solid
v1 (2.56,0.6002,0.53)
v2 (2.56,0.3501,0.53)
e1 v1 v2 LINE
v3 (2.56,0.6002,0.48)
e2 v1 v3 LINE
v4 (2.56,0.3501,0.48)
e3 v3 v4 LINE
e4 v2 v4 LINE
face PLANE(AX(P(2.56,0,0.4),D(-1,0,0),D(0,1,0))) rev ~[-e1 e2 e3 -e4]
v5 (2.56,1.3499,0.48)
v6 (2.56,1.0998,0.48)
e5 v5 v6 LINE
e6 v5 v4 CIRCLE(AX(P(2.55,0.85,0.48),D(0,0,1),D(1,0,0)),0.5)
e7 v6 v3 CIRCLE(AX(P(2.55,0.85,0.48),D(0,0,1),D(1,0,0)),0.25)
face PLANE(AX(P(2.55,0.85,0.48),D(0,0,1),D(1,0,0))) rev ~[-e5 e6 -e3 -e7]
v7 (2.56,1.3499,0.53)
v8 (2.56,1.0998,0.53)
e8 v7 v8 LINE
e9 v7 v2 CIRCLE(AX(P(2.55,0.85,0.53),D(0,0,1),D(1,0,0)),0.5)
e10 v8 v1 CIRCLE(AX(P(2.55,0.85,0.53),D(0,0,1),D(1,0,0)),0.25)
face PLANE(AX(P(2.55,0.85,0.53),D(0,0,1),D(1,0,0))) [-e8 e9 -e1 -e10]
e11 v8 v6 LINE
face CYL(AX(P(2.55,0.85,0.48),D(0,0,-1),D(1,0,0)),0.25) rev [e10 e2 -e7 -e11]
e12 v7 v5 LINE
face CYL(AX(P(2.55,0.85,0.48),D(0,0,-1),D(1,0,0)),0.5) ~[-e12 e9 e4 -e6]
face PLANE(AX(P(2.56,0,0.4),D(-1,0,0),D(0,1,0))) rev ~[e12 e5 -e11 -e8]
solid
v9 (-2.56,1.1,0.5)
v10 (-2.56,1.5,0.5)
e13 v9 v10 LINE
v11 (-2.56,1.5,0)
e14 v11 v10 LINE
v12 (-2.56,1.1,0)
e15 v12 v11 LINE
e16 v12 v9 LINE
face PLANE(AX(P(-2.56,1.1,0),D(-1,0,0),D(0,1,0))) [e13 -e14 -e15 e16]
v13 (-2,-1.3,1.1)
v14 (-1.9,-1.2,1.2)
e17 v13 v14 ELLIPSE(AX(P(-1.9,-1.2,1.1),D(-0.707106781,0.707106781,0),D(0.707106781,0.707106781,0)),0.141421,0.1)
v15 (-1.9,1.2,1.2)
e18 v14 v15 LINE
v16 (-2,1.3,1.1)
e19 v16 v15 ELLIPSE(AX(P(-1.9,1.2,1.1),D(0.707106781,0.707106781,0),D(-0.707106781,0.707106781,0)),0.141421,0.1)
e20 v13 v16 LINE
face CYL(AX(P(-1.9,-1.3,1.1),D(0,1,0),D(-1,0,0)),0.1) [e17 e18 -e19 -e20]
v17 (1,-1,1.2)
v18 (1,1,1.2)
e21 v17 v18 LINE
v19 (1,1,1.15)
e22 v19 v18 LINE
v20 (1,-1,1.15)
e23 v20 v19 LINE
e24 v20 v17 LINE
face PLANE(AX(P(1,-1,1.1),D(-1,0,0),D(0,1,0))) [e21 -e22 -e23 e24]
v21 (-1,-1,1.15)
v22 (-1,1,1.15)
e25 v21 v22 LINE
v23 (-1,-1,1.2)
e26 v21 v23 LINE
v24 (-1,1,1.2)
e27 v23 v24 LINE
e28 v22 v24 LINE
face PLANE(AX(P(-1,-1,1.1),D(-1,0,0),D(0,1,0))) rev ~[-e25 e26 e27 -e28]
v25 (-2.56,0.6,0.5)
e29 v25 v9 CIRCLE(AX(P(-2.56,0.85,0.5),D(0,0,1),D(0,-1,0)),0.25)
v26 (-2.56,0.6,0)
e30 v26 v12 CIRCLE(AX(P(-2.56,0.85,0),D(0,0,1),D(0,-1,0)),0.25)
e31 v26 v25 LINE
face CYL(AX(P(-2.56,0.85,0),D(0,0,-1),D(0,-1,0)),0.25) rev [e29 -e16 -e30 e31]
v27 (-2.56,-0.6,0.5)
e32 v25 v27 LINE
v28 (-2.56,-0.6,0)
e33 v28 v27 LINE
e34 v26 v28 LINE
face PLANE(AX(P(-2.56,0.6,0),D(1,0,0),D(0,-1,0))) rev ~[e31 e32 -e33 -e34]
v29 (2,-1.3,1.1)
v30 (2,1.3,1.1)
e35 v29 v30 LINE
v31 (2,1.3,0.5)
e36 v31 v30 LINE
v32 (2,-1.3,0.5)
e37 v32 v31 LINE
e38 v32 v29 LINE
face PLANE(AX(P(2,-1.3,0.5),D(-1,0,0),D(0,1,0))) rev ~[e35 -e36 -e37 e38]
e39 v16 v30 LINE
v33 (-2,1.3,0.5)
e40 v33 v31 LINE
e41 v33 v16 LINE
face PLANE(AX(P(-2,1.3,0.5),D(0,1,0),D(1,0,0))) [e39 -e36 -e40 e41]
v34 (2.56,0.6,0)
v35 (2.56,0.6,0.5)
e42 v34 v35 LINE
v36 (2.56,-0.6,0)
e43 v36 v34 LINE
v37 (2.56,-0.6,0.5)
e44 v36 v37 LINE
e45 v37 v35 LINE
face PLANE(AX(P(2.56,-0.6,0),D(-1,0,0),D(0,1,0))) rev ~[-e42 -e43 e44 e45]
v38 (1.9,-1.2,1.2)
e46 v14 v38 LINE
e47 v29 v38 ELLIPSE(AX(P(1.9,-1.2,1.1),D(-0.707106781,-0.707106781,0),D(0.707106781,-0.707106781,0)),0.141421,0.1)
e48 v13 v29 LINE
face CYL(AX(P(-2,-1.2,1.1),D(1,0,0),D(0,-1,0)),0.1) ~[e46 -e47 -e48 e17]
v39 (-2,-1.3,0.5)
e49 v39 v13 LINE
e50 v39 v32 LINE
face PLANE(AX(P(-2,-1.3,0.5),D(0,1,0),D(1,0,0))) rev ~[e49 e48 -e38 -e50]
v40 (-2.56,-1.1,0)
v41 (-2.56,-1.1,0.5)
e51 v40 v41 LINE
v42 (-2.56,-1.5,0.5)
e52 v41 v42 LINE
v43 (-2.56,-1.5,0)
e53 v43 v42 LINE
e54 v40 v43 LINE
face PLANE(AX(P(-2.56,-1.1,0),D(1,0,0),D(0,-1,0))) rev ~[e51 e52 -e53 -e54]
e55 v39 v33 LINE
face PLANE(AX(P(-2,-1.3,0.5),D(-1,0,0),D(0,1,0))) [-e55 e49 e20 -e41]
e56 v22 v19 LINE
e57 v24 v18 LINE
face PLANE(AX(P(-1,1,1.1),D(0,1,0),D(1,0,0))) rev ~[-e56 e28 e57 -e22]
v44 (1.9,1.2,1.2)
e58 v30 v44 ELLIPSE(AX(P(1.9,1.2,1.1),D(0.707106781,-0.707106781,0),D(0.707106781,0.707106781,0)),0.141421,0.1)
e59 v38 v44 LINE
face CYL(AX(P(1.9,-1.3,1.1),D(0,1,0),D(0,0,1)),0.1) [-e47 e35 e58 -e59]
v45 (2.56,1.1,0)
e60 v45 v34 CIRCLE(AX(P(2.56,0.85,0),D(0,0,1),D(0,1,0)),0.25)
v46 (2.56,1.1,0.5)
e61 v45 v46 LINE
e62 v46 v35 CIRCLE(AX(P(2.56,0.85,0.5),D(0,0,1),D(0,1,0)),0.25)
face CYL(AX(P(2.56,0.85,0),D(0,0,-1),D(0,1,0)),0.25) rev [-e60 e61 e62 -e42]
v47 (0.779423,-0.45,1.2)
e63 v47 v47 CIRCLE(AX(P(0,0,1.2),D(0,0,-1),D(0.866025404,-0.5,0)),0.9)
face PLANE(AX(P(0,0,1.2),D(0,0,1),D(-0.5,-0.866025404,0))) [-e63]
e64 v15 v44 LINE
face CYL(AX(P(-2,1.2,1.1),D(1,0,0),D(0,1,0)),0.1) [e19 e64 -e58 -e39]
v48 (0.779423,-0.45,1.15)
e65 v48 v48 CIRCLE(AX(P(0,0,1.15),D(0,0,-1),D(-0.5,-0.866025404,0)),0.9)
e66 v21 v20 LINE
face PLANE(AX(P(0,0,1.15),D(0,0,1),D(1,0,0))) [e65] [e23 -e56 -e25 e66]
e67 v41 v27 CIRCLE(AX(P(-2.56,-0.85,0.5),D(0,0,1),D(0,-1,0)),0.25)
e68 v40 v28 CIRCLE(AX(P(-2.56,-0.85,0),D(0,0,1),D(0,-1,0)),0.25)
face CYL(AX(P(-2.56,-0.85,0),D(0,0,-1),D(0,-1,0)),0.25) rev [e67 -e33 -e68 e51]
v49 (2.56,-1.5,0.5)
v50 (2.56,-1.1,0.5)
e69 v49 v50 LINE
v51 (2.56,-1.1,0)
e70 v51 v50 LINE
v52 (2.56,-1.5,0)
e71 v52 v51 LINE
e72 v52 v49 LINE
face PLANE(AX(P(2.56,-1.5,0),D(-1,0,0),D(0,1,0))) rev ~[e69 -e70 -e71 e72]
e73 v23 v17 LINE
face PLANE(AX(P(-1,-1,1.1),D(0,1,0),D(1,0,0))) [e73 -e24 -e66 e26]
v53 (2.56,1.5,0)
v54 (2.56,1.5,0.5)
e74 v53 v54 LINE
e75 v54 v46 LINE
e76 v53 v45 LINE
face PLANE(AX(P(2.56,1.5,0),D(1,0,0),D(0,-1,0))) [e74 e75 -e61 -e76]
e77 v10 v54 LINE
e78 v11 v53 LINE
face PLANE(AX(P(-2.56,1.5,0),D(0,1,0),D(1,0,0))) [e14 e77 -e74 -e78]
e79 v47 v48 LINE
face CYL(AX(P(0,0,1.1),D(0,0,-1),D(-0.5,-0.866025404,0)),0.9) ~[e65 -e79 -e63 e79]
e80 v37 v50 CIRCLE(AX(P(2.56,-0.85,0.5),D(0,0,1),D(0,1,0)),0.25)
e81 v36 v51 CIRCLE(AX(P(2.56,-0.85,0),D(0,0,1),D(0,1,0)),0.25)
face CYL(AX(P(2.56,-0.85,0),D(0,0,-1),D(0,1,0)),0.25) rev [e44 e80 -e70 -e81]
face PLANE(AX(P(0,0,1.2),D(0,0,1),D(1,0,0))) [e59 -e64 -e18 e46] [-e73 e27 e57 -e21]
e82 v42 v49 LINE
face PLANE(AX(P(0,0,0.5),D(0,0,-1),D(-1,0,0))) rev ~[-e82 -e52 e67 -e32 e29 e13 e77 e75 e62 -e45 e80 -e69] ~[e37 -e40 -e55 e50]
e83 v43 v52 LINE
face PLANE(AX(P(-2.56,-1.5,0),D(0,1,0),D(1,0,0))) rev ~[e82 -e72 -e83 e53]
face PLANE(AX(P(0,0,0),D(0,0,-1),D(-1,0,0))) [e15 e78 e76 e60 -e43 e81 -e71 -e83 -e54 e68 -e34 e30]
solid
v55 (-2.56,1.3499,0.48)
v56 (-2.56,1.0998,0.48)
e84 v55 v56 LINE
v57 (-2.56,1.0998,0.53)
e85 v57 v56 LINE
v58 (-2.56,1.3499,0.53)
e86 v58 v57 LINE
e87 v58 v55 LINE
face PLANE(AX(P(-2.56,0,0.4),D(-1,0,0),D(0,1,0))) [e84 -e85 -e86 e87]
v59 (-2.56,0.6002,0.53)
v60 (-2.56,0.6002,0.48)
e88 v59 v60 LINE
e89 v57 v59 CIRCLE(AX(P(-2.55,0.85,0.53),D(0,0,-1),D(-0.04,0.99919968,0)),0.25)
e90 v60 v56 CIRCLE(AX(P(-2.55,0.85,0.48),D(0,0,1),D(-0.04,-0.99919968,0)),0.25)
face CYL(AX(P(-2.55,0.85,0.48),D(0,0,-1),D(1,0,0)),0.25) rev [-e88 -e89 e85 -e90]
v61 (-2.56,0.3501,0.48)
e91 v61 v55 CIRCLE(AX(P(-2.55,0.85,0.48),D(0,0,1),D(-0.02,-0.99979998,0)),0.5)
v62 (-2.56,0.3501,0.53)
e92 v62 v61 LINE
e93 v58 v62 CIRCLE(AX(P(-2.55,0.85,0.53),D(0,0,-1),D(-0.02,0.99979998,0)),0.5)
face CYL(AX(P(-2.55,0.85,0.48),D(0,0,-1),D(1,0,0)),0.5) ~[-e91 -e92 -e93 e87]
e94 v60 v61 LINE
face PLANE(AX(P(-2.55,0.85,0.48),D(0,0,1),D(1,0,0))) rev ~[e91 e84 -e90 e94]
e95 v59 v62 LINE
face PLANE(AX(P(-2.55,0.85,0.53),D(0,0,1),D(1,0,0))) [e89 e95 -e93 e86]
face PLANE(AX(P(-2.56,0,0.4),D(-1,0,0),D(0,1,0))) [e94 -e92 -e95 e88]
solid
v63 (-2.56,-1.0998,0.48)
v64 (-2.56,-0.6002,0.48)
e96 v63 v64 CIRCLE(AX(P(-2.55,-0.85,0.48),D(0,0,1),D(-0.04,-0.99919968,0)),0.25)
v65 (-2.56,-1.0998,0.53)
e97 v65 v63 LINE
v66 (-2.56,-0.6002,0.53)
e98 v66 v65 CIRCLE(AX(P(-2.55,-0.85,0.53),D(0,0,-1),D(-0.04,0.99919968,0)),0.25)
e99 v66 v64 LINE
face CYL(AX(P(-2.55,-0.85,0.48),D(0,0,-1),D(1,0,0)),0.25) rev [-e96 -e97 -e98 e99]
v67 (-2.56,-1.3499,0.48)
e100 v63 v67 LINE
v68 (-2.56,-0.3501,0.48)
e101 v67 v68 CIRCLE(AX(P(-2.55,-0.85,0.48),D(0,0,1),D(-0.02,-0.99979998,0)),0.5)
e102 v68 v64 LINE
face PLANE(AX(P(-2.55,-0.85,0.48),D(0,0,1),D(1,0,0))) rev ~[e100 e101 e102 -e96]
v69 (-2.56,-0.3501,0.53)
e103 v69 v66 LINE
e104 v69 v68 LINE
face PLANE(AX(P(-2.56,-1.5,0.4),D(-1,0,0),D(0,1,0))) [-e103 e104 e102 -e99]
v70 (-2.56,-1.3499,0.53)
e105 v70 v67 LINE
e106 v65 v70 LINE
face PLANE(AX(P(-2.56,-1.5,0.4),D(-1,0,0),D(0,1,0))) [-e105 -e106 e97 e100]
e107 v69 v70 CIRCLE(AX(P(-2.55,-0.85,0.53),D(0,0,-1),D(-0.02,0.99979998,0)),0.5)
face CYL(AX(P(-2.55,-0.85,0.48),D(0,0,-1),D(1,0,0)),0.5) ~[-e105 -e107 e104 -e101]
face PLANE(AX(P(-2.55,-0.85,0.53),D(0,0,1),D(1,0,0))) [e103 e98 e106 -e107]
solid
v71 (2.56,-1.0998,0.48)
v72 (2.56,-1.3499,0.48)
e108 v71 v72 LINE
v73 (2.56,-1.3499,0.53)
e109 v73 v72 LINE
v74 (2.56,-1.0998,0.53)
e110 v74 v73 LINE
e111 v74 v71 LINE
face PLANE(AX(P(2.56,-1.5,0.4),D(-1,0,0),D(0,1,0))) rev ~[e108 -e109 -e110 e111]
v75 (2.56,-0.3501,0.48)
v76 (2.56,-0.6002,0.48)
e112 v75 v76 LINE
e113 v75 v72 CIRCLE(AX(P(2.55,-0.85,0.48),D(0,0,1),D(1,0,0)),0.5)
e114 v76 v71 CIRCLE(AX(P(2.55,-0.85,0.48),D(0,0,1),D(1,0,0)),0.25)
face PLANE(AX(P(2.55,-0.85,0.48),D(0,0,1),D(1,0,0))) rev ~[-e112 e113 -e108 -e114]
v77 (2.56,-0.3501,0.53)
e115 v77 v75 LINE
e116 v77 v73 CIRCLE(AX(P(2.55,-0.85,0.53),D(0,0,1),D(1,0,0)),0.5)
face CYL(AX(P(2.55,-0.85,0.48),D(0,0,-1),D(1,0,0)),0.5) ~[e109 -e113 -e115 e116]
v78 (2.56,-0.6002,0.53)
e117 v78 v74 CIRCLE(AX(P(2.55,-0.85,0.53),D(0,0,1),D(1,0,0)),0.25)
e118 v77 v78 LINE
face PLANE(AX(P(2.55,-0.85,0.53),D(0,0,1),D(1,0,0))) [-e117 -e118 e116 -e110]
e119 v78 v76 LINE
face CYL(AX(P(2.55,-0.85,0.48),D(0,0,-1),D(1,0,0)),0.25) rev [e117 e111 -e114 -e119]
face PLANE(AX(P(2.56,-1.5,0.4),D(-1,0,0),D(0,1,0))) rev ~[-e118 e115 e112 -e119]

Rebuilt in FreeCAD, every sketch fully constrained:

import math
import FreeCAD as App
import Part
import Sketcher

V = App.Vector
Q = App.Units.Quantity


def edges_at(feature, points):
    """Names of the edges that pass closest to the given points."""
    edges = feature.Shape.Edges
    near = lambda p: min(range(len(edges)), key=lambda i: edges[i].distToShape(Part.Vertex(*p))[0])
    return sorted({f"Edge{near(p) + 1}" for p in points})


def add_polygon(sketch, points):
    """Adds a closed chain of lines whose ends are joined by coincident constraints."""
    first, n = sketch.GeometryCount, len(points)
    for a, b in zip(points, points[1:] + points[:1]):
        sketch.addGeometry(Part.LineSegment(App.Vector(*a, 0), App.Vector(*b, 0)), False)
    for i in range(n):
        sketch.addConstraint(Sketcher.Constraint("Coincident", first + i, 2, first + (i + 1) % n, 1))

doc = App.newDocument("Part")
body = doc.addObject("PartDesign::Body", "Body")

# Sketch on XY plane
sketch1 = body.newObject("Sketcher::SketchObject", "Sketch")
sketch1.AttachmentSupport = (doc.getObject("XY_Plane"), [""])
sketch1.MapMode = "FlatFace"
sketch1.AttachmentOffset = App.Placement(V(0, 0, 0.4), App.Rotation())
add_polygon(sketch1, [(-3.6, 1.5), (-3.6, 0), (-2.6, 0), (-2.6, 1.5)])  # lines 0-3
sketch1.addConstraint([
    Sketcher.Constraint("Vertical", 0),
    Sketcher.Constraint("Horizontal", 1),
    Sketcher.Constraint("Vertical", 2),
    Sketcher.Constraint("Horizontal", 3),
    Sketcher.Constraint("PointOnObject", 0, 2, -1),
    Sketcher.Constraint("DistanceX", 1, 1, 1, 2, Q("1 mm")),
    Sketcher.Constraint("DistanceY", 0, 2, 0, 1, Q("1.5 mm")),
    Sketcher.Constraint("DistanceX", 0, 2, -1, 1, Q("3.56 mm")),
])
pad1 = body.newObject("PartDesign::Pad", "Pad")
pad1.Profile = sketch1
pad1.Length = 0.3
body2 = doc.addObject("PartDesign::Body", "Body001")

# Sketch on XY plane
sketch2 = body2.newObject("Sketcher::SketchObject", "Sketch001")
sketch2.AttachmentSupport = (doc.getObject("XY_Plane001"), [""])
sketch2.MapMode = "FlatFace"
sketch2.AttachmentOffset = App.Placement(V(0, 0, 0.48), App.Rotation())
sketch2.addGeometry(Part.Circle(V(-2.55, 0.85, 0), V(0, 0, 1), 0.25), False)
sketch2.addConstraint([
    Sketcher.Constraint("Diameter", 0, Q("0.5 mm")),
    Sketcher.Constraint("DistanceX", 0, 3, -1, 1, Q("2.55 mm")),
    Sketcher.Constraint("DistanceY", -1, 1, 0, 3, Q("0.85 mm")),
])
pad2 = body2.newObject("PartDesign::Pad", "Pad001")
pad2.Profile = sketch2
pad2.Length = 0.05
body3 = doc.addObject("PartDesign::Body", "Body002")

# Sketch on XY plane
sketch3 = body3.newObject("Sketcher::SketchObject", "Sketch002")
sketch3.AttachmentSupport = (doc.getObject("XY_Plane002"), [""])
sketch3.MapMode = "FlatFace"
sketch3.AttachmentOffset = App.Placement(V(0, 0, 0.48), App.Rotation())
sketch3.addGeometry(Part.Circle(V(-2.5, 0.8, 0), V(0, 0, 1), 0.5), False)
sketch3.addConstraint([
    Sketcher.Constraint("Diameter", 0, Q("1 mm")),
    Sketcher.Constraint("DistanceX", 0, 3, -1, 1, Q("2.55 mm")),
    Sketcher.Constraint("DistanceY", -1, 1, 0, 3, Q("0.85 mm")),
])
pad3 = body3.newObject("PartDesign::Pad", "Pad002")
pad3.Profile = sketch3
pad3.Length = 0.05
doc.recompute()

boolean = body3.newObject("PartDesign::Boolean", "Boolean")
boolean.Type = "Cut"
boolean.addObjects([body2])
doc.recompute()

boolean2 = body3.newObject("PartDesign::Boolean", "Boolean001")
boolean2.Type = "Cut"
boolean2.addObjects([body])
body4 = doc.addObject("PartDesign::Body", "Body003")

# Sketch on XY plane
sketch4 = body4.newObject("Sketcher::SketchObject", "Sketch003")
sketch4.AttachmentSupport = (doc.getObject("XY_Plane003"), [""])
sketch4.MapMode = "FlatFace"
sketch4.AttachmentOffset = App.Placement(V(0, 0, 0.4), App.Rotation())
add_polygon(sketch4, [(-3.6, 1), (-3.6, -1.5), (-2.6, -1.5), (-2.6, 1)])  # lines 0-3
sketch4.addConstraint([
    Sketcher.Constraint("Vertical", 0),
    Sketcher.Constraint("Horizontal", 1),
    Sketcher.Constraint("Vertical", 2),
    Sketcher.Constraint("Horizontal", 3),
    Sketcher.Constraint("DistanceX", 1, 1, 1, 2, Q("1 mm")),
    Sketcher.Constraint("DistanceY", 0, 2, 0, 1, Q("2.5 mm")),
    Sketcher.Constraint("DistanceY", -1, 1, 2, 2, Q("1 mm")),
    Sketcher.Constraint("DistanceX", 0, 2, -1, 1, Q("3.56 mm")),
])
pad4 = body4.newObject("PartDesign::Pad", "Pad003")
pad4.Profile = sketch4
pad4.Length = 0.3
body5 = doc.addObject("PartDesign::Body", "Body004")

# Sketch on XY plane
sketch5 = body5.newObject("Sketcher::SketchObject", "Sketch004")
sketch5.AttachmentSupport = (doc.getObject("XY_Plane004"), [""])
sketch5.MapMode = "FlatFace"
sketch5.AttachmentOffset = App.Placement(V(0, 0, 0.48), App.Rotation())
sketch5.addGeometry(Part.Circle(V(-2.55, -0.85, 0), V(0, 0, 1), 0.25), False)
sketch5.addConstraint([
    Sketcher.Constraint("Diameter", 0, Q("0.5 mm")),
    Sketcher.Constraint("DistanceX", 0, 3, -1, 1, Q("2.55 mm")),
    Sketcher.Constraint("DistanceY", 0, 3, -1, 1, Q("0.85 mm")),
])
pad5 = body5.newObject("PartDesign::Pad", "Pad004")
pad5.Profile = sketch5
pad5.Length = 0.05
body6 = doc.addObject("PartDesign::Body", "Body005")

# Sketch on XY plane
sketch6 = body6.newObject("Sketcher::SketchObject", "Sketch005")
sketch6.AttachmentSupport = (doc.getObject("XY_Plane005"), [""])
sketch6.MapMode = "FlatFace"
sketch6.AttachmentOffset = App.Placement(V(0, 0, 0.48), App.Rotation())
sketch6.addGeometry(Part.Circle(V(-2.5, -0.8, 0), V(0, 0, 1), 0.5), False)
sketch6.addConstraint([
    Sketcher.Constraint("Diameter", 0, Q("1 mm")),
    Sketcher.Constraint("DistanceX", 0, 3, -1, 1, Q("2.55 mm")),
    Sketcher.Constraint("DistanceY", 0, 3, -1, 1, Q("0.85 mm")),
])
pad6 = body6.newObject("PartDesign::Pad", "Pad005")
pad6.Profile = sketch6
pad6.Length = 0.05
doc.recompute()

boolean3 = body6.newObject("PartDesign::Boolean", "Boolean002")
boolean3.Type = "Cut"
boolean3.addObjects([body5])
doc.recompute()

boolean4 = body6.newObject("PartDesign::Boolean", "Boolean003")
boolean4.Type = "Cut"
boolean4.addObjects([body4])
body7 = doc.addObject("PartDesign::Body", "Body006")

# Sketch on XY plane
sketch7 = body7.newObject("Sketcher::SketchObject", "Sketch006")
sketch7.AttachmentSupport = (doc.getObject("XY_Plane006"), [""])
sketch7.MapMode = "FlatFace"
sketch7.AttachmentOffset = App.Placement(V(0, 0, 0.4), App.Rotation())
add_polygon(sketch7, [(2.6, 0), (2.6, -1.5), (3.6, -1.5), (3.6, 0)])  # lines 0-3
sketch7.addConstraint([
    Sketcher.Constraint("Vertical", 0),
    Sketcher.Constraint("Horizontal", 1),
    Sketcher.Constraint("Vertical", 2),
    Sketcher.Constraint("Horizontal", 3),
    Sketcher.Constraint("PointOnObject", 2, 2, -1),
    Sketcher.Constraint("DistanceX", 1, 1, 1, 2, Q("1 mm")),
    Sketcher.Constraint("DistanceY", 0, 2, 0, 1, Q("1.5 mm")),
    Sketcher.Constraint("DistanceX", -1, 1, 0, 2, Q("2.56 mm")),
])
pad7 = body7.newObject("PartDesign::Pad", "Pad006")
pad7.Profile = sketch7
pad7.Length = 0.3
body8 = doc.addObject("PartDesign::Body", "Body007")

# Sketch on XY plane
sketch8 = body8.newObject("Sketcher::SketchObject", "Sketch007")
sketch8.AttachmentSupport = (doc.getObject("XY_Plane007"), [""])
sketch8.MapMode = "FlatFace"
sketch8.AttachmentOffset = App.Placement(V(0, 0, 0.48), App.Rotation())
sketch8.addGeometry(Part.Circle(V(2.55, -0.85, 0), V(0, 0, 1), 0.25), False)
sketch8.addConstraint([
    Sketcher.Constraint("Diameter", 0, Q("0.5 mm")),
    Sketcher.Constraint("DistanceX", -1, 1, 0, 3, Q("2.55 mm")),
    Sketcher.Constraint("DistanceY", 0, 3, -1, 1, Q("0.85 mm")),
])
pad8 = body8.newObject("PartDesign::Pad", "Pad007")
pad8.Profile = sketch8
pad8.Length = 0.05
body9 = doc.addObject("PartDesign::Body", "Body008")

# Sketch on XY plane
sketch9 = body9.newObject("Sketcher::SketchObject", "Sketch008")
sketch9.AttachmentSupport = (doc.getObject("XY_Plane008"), [""])
sketch9.MapMode = "FlatFace"
sketch9.AttachmentOffset = App.Placement(V(0, 0, 0.48), App.Rotation())
sketch9.addGeometry(Part.Circle(V(2.5, -0.8, 0), V(0, 0, 1), 0.5), False)
sketch9.addConstraint([
    Sketcher.Constraint("Diameter", 0, Q("1 mm")),
    Sketcher.Constraint("DistanceX", -1, 1, 0, 3, Q("2.55 mm")),
    Sketcher.Constraint("DistanceY", 0, 3, -1, 1, Q("0.85 mm")),
])
pad9 = body9.newObject("PartDesign::Pad", "Pad008")
pad9.Profile = sketch9
pad9.Length = 0.05
doc.recompute()

boolean5 = body9.newObject("PartDesign::Boolean", "Boolean004")
boolean5.Type = "Cut"
boolean5.addObjects([body8])
doc.recompute()

boolean6 = body9.newObject("PartDesign::Boolean", "Boolean005")
boolean6.Type = "Cut"
boolean6.addObjects([body7])
body10 = doc.addObject("PartDesign::Body", "Body009")

# Sketch on XY plane
sketch10 = body10.newObject("Sketcher::SketchObject", "Sketch009")
sketch10.AttachmentSupport = (doc.getObject("XY_Plane009"), [""])
sketch10.MapMode = "FlatFace"
sketch10.AttachmentOffset = App.Placement(V(0, 0, 0.4), App.Rotation())
add_polygon(sketch10, [(2.6, 1.5), (2.6, 0), (3.6, 0), (3.6, 1.5)])  # lines 0-3
sketch10.addConstraint([
    Sketcher.Constraint("Vertical", 0),
    Sketcher.Constraint("Horizontal", 1),
    Sketcher.Constraint("Vertical", 2),
    Sketcher.Constraint("Horizontal", 3),
    Sketcher.Constraint("PointOnObject", 0, 2, -1),
    Sketcher.Constraint("DistanceX", 1, 1, 1, 2, Q("1 mm")),
    Sketcher.Constraint("DistanceY", 0, 2, 0, 1, Q("1.5 mm")),
    Sketcher.Constraint("DistanceX", -1, 1, 0, 2, Q("2.56 mm")),
])
pad10 = body10.newObject("PartDesign::Pad", "Pad009")
pad10.Profile = sketch10
pad10.Length = 0.3
body11 = doc.addObject("PartDesign::Body", "Body010")

# Sketch on XY plane
sketch11 = body11.newObject("Sketcher::SketchObject", "Sketch010")
sketch11.AttachmentSupport = (doc.getObject("XY_Plane010"), [""])
sketch11.MapMode = "FlatFace"
sketch11.AttachmentOffset = App.Placement(V(0, 0, 0.48), App.Rotation())
sketch11.addGeometry(Part.Circle(V(2.55, 0.85, 0), V(0, 0, 1), 0.25), False)
sketch11.addConstraint([
    Sketcher.Constraint("Diameter", 0, Q("0.5 mm")),
    Sketcher.Constraint("DistanceX", -1, 1, 0, 3, Q("2.55 mm")),
    Sketcher.Constraint("DistanceY", -1, 1, 0, 3, Q("0.85 mm")),
])
pad11 = body11.newObject("PartDesign::Pad", "Pad010")
pad11.Profile = sketch11
pad11.Length = 0.05
body12 = doc.addObject("PartDesign::Body", "Body011")

# Sketch on XY plane
sketch12 = body12.newObject("Sketcher::SketchObject", "Sketch011")
sketch12.AttachmentSupport = (doc.getObject("XY_Plane011"), [""])
sketch12.MapMode = "FlatFace"
sketch12.AttachmentOffset = App.Placement(V(0, 0, 0.48), App.Rotation())
sketch12.addGeometry(Part.Circle(V(2.5, 0.8, 0), V(0, 0, 1), 0.5), False)
sketch12.addConstraint([
    Sketcher.Constraint("Diameter", 0, Q("1 mm")),
    Sketcher.Constraint("DistanceX", -1, 1, 0, 3, Q("2.55 mm")),
    Sketcher.Constraint("DistanceY", -1, 1, 0, 3, Q("0.85 mm")),
])
pad12 = body12.newObject("PartDesign::Pad", "Pad011")
pad12.Profile = sketch12
pad12.Length = 0.05
doc.recompute()

boolean7 = body12.newObject("PartDesign::Boolean", "Boolean006")
boolean7.Type = "Cut"
boolean7.addObjects([body11])
doc.recompute()

boolean8 = body12.newObject("PartDesign::Boolean", "Boolean007")
boolean8.Type = "Cut"
boolean8.addObjects([body10])
body13 = doc.addObject("PartDesign::Body", "Body012")

# Sketch on XY plane
sketch13 = body13.newObject("Sketcher::SketchObject", "Sketch012")
sketch13.AttachmentSupport = (doc.getObject("XY_Plane012"), [""])
sketch13.MapMode = "FlatFace"
add_polygon(sketch13, [(0, 3), (0, 0), (2, 0), (2, 3)])  # lines 0-3
sketch13.addConstraint([
    Sketcher.Constraint("Vertical", 0),
    Sketcher.Constraint("Horizontal", 1),
    Sketcher.Constraint("Vertical", 2),
    Sketcher.Constraint("Horizontal", 3),
    Sketcher.Constraint("Coincident", 0, 2, -1, 1),
    Sketcher.Constraint("DistanceX", 1, 1, 1, 2, Q("2 mm")),
    Sketcher.Constraint("DistanceY", 0, 2, 0, 1, Q("3 mm")),
])
pad13 = body13.newObject("PartDesign::Pad", "Pad012")
pad13.Profile = sketch13
pad13.Length = 0.2
body14 = doc.addObject("PartDesign::Body", "Body013")
doc.recompute()

body13.Placement = App.Placement(V(0, 0, 1.2), App.Rotation(V(0, 0, -1), 120))
boolean9 = body14.newObject("PartDesign::Boolean", "Boolean008")
boolean9.Type = "Fuse"
boolean9.addObjects([body13])
body15 = doc.addObject("PartDesign::Body", "Body014")

# Sketch on XY plane
sketch14 = body15.newObject("Sketcher::SketchObject", "Sketch013")
sketch14.AttachmentSupport = (doc.getObject("XY_Plane014"), [""])
sketch14.MapMode = "FlatFace"
sketch14.AttachmentOffset = App.Placement(V(0, 0, 1.2), App.Rotation())
add_polygon(sketch14, [(-2, 2), (-2, -1), (0, -1), (0, 2)])  # lines 0-3
sketch14.addConstraint([
    Sketcher.Constraint("Vertical", 0),
    Sketcher.Constraint("Horizontal", 1),
    Sketcher.Constraint("Vertical", 2),
    Sketcher.Constraint("Horizontal", 3),
    Sketcher.Constraint("PointOnObject", 1, 2, -2),
    Sketcher.Constraint("DistanceX", 1, 1, 1, 2, Q("2 mm")),
    Sketcher.Constraint("DistanceY", 0, 2, 0, 1, Q("3 mm")),
    Sketcher.Constraint("DistanceY", 0, 2, -1, 1, Q("1 mm")),
])
pad14 = body15.newObject("PartDesign::Pad", "Pad013")
pad14.Profile = sketch14
pad14.Length = 0.2
body16 = doc.addObject("PartDesign::Body", "Body015")

# Sketch on XY plane
sketch15 = body16.newObject("Sketcher::SketchObject", "Sketch014")
sketch15.AttachmentSupport = (doc.getObject("XY_Plane015"), [""])
sketch15.MapMode = "FlatFace"
sketch15.AttachmentOffset = App.Placement(V(0, 0, 1.2), App.Rotation())
sketch15.addGeometry(Part.Circle(V(0, 0, 0), V(0, 0, 1), 0.9), False)
sketch15.addConstraint([
    Sketcher.Constraint("Coincident", 0, 3, -1, 1),
    Sketcher.Constraint("Diameter", 0, Q("1.8 mm")),
])
pad15 = body16.newObject("PartDesign::Pad", "Pad014")
pad15.Profile = sketch15
pad15.Length = 0.1
doc.recompute()

boolean10 = body16.newObject("PartDesign::Boolean", "Boolean009")
boolean10.Type = "Cut"
boolean10.addObjects([body15])
doc.recompute()

boolean11 = body16.newObject("PartDesign::Boolean", "Boolean010")
boolean11.Type = "Cut"
boolean11.addObjects([body14])
body17 = doc.addObject("PartDesign::Body", "Body016")
doc.recompute()

body16.Placement = App.Placement(V(0, 0, 0), App.Rotation(V(0, 0, 1), 120))
boolean12 = body17.newObject("PartDesign::Boolean", "Boolean011")
boolean12.Type = "Fuse"
boolean12.addObjects([body16])
body18 = doc.addObject("PartDesign::Body", "Body017")

# Sketch on XY plane
sketch16 = body18.newObject("Sketcher::SketchObject", "Sketch015")
sketch16.AttachmentSupport = (doc.getObject("XY_Plane017"), [""])
sketch16.MapMode = "FlatFace"
add_polygon(sketch16, [(0, 3), (0, 0), (2, 0), (2, 3)])  # lines 0-3
sketch16.addConstraint([
    Sketcher.Constraint("Vertical", 0),
    Sketcher.Constraint("Horizontal", 1),
    Sketcher.Constraint("Vertical", 2),
    Sketcher.Constraint("Horizontal", 3),
    Sketcher.Constraint("Coincident", 0, 2, -1, 1),
    Sketcher.Constraint("DistanceX", 1, 1, 1, 2, Q("2 mm")),
    Sketcher.Constraint("DistanceY", 0, 2, 0, 1, Q("3 mm")),
])
pad16 = body18.newObject("PartDesign::Pad", "Pad015")
pad16.Profile = sketch16
pad16.Length = 0.2
body19 = doc.addObject("PartDesign::Body", "Body018")
doc.recompute()

body18.Placement = App.Placement(V(0, 0, 1.2), App.Rotation(V(0, 0, -1), 120))
boolean13 = body19.newObject("PartDesign::Boolean", "Boolean012")
boolean13.Type = "Fuse"
boolean13.addObjects([body18])
body20 = doc.addObject("PartDesign::Body", "Body019")

# Sketch on XY plane
sketch17 = body20.newObject("Sketcher::SketchObject", "Sketch016")
sketch17.AttachmentSupport = (doc.getObject("XY_Plane019"), [""])
sketch17.MapMode = "FlatFace"
sketch17.AttachmentOffset = App.Placement(V(0, 0, 1.2), App.Rotation())
add_polygon(sketch17, [(-2, 2), (-2, -1), (0, -1), (0, 2)])  # lines 0-3
sketch17.addConstraint([
    Sketcher.Constraint("Vertical", 0),
    Sketcher.Constraint("Horizontal", 1),
    Sketcher.Constraint("Vertical", 2),
    Sketcher.Constraint("Horizontal", 3),
    Sketcher.Constraint("PointOnObject", 1, 2, -2),
    Sketcher.Constraint("DistanceX", 1, 1, 1, 2, Q("2 mm")),
    Sketcher.Constraint("DistanceY", 0, 2, 0, 1, Q("3 mm")),
    Sketcher.Constraint("DistanceY", 0, 2, -1, 1, Q("1 mm")),
])
pad17 = body20.newObject("PartDesign::Pad", "Pad016")
pad17.Profile = sketch17
pad17.Length = 0.2
body21 = doc.addObject("PartDesign::Body", "Body020")

# Sketch on XY plane
sketch18 = body21.newObject("Sketcher::SketchObject", "Sketch017")
sketch18.AttachmentSupport = (doc.getObject("XY_Plane020"), [""])
sketch18.MapMode = "FlatFace"
sketch18.AttachmentOffset = App.Placement(V(0, 0, 1.2), App.Rotation())
sketch18.addGeometry(Part.Circle(V(0, 0, 0), V(0, 0, 1), 0.9), False)
sketch18.addConstraint([
    Sketcher.Constraint("Coincident", 0, 3, -1, 1),
    Sketcher.Constraint("Diameter", 0, Q("1.8 mm")),
])
pad18 = body21.newObject("PartDesign::Pad", "Pad017")
pad18.Profile = sketch18
pad18.Length = 0.1
doc.recompute()

boolean14 = body21.newObject("PartDesign::Boolean", "Boolean013")
boolean14.Type = "Cut"
boolean14.addObjects([body20])
doc.recompute()

boolean15 = body21.newObject("PartDesign::Boolean", "Boolean014")
boolean15.Type = "Cut"
boolean15.addObjects([body19])
body22 = doc.addObject("PartDesign::Body", "Body021")
doc.recompute()

body21.Placement = App.Placement(V(0, 0, 0), App.Rotation(V(0, 0, 1), 240))
boolean16 = body22.newObject("PartDesign::Boolean", "Boolean015")
boolean16.Type = "Fuse"
boolean16.addObjects([body21])
body23 = doc.addObject("PartDesign::Body", "Body022")

# Sketch on XY plane
sketch19 = body23.newObject("Sketcher::SketchObject", "Sketch018")
sketch19.AttachmentSupport = (doc.getObject("XY_Plane022"), [""])
sketch19.MapMode = "FlatFace"
add_polygon(sketch19, [(0, 3), (0, 0), (2, 0), (2, 3)])  # lines 0-3
sketch19.addConstraint([
    Sketcher.Constraint("Vertical", 0),
    Sketcher.Constraint("Horizontal", 1),
    Sketcher.Constraint("Vertical", 2),
    Sketcher.Constraint("Horizontal", 3),
    Sketcher.Constraint("Coincident", 0, 2, -1, 1),
    Sketcher.Constraint("DistanceX", 1, 1, 1, 2, Q("2 mm")),
    Sketcher.Constraint("DistanceY", 0, 2, 0, 1, Q("3 mm")),
])
pad19 = body23.newObject("PartDesign::Pad", "Pad018")
pad19.Profile = sketch19
pad19.Length = 0.2
body24 = doc.addObject("PartDesign::Body", "Body023")
doc.recompute()

body23.Placement = App.Placement(V(0, 0, 1.2), App.Rotation(V(0, 0, -1), 120))
boolean17 = body24.newObject("PartDesign::Boolean", "Boolean016")
boolean17.Type = "Fuse"
boolean17.addObjects([body23])
body25 = doc.addObject("PartDesign::Body", "Body024")

# Sketch on XY plane
sketch20 = body25.newObject("Sketcher::SketchObject", "Sketch019")
sketch20.AttachmentSupport = (doc.getObject("XY_Plane024"), [""])
sketch20.MapMode = "FlatFace"
sketch20.AttachmentOffset = App.Placement(V(0, 0, 1.2), App.Rotation())
add_polygon(sketch20, [(-2, 2), (-2, -1), (0, -1), (0, 2)])  # lines 0-3
sketch20.addConstraint([
    Sketcher.Constraint("Vertical", 0),
    Sketcher.Constraint("Horizontal", 1),
    Sketcher.Constraint("Vertical", 2),
    Sketcher.Constraint("Horizontal", 3),
    Sketcher.Constraint("PointOnObject", 1, 2, -2),
    Sketcher.Constraint("DistanceX", 1, 1, 1, 2, Q("2 mm")),
    Sketcher.Constraint("DistanceY", 0, 2, 0, 1, Q("3 mm")),
    Sketcher.Constraint("DistanceY", 0, 2, -1, 1, Q("1 mm")),
])
pad20 = body25.newObject("PartDesign::Pad", "Pad019")
pad20.Profile = sketch20
pad20.Length = 0.2
body26 = doc.addObject("PartDesign::Body", "Body025")

# Sketch on XY plane
sketch21 = body26.newObject("Sketcher::SketchObject", "Sketch020")
sketch21.AttachmentSupport = (doc.getObject("XY_Plane025"), [""])
sketch21.MapMode = "FlatFace"
sketch21.AttachmentOffset = App.Placement(V(0, 0, 1.2), App.Rotation())
sketch21.addGeometry(Part.Circle(V(0, 0, 0), V(0, 0, 1), 0.9), False)
sketch21.addConstraint([
    Sketcher.Constraint("Coincident", 0, 3, -1, 1),
    Sketcher.Constraint("Diameter", 0, Q("1.8 mm")),
])
pad21 = body26.newObject("PartDesign::Pad", "Pad020")
pad21.Profile = sketch21
pad21.Length = 0.1
doc.recompute()

boolean18 = body26.newObject("PartDesign::Boolean", "Boolean017")
boolean18.Type = "Cut"
boolean18.addObjects([body25])
doc.recompute()

boolean19 = body26.newObject("PartDesign::Boolean", "Boolean018")
boolean19.Type = "Cut"
boolean19.addObjects([body24])
doc.recompute()

boolean20 = body26.newObject("PartDesign::Boolean", "Boolean019")
boolean20.Type = "Fuse"
boolean20.addObjects([body17])
doc.recompute()

boolean21 = body26.newObject("PartDesign::Boolean", "Boolean020")
boolean21.Type = "Fuse"
boolean21.addObjects([body22])
body27 = doc.addObject("PartDesign::Body", "Body026")
doc.recompute()

body26.Placement = App.Placement(V(0, 0, -0.1), App.Rotation(V(0, 0, 1), 0))
boolean22 = body27.newObject("PartDesign::Boolean", "Boolean021")
boolean22.Type = "Fuse"
boolean22.addObjects([body26])
body28 = doc.addObject("PartDesign::Body", "Body027")

# Sketch on XY plane
sketch22 = body28.newObject("Sketcher::SketchObject", "Sketch021")
sketch22.AttachmentSupport = (doc.getObject("XY_Plane027"), [""])
sketch22.MapMode = "FlatFace"
sketch22.AttachmentOffset = App.Placement(V(0, 0, 0.95), App.Rotation())
add_polygon(sketch22, [(-1, 1), (-1, -1), (1, -1), (1, 1)])  # lines 0-3
sketch22.addConstraint([
    Sketcher.Constraint("Vertical", 0),
    Sketcher.Constraint("Horizontal", 1),
    Sketcher.Constraint("Vertical", 2),
    Sketcher.Constraint("Horizontal", 3),
    Sketcher.Constraint("Symmetric", 0, 2, 2, 2, -1, 1),
    Sketcher.Constraint("Equal", 3, 0),
    Sketcher.Constraint("DistanceX", 1, 1, 1, 2, Q("2 mm")),
])
pad22 = body28.newObject("PartDesign::Pad", "Pad021")
pad22.Profile = sketch22
pad22.Length = 0.2
body29 = doc.addObject("PartDesign::Body", "Body028")

# Sketch on XY plane
sketch23 = body29.newObject("Sketcher::SketchObject", "Sketch022")
sketch23.AttachmentSupport = (doc.getObject("XY_Plane028"), [""])
sketch23.MapMode = "FlatFace"
sketch23.addGeometry([
    Part.LineSegment(V(-2.56, 1.5, 0), V(-2.56, 1.1, 0)),  # 0
    Part.ArcOfCircle(Part.Circle(V(-2.56, 0.85, 0), V(0, 0, 1), 0.25), math.radians(-90), math.radians(90)),  # 1
    Part.LineSegment(V(-2.56, 0.6, 0), V(-2.56, -0.6, 0)),  # 2
    Part.ArcOfCircle(Part.Circle(V(-2.56, -0.85, 0), V(0, 0, 1), 0.25), math.radians(-90), math.radians(90)),  # 3
    Part.LineSegment(V(-2.56, -1.1, 0), V(-2.56, -1.5, 0)),  # 4
    Part.LineSegment(V(-2.56, -1.5, 0), V(2.56, -1.5, 0)),  # 5
    Part.LineSegment(V(2.56, -1.5, 0), V(2.56, -1.1, 0)),  # 6
    Part.ArcOfCircle(Part.Circle(V(2.56, -0.85, 0), V(0, 0, 1), 0.25), math.radians(90), math.radians(270)),  # 7
    Part.LineSegment(V(2.56, -0.6, 0), V(2.56, 0.6, 0)),  # 8
    Part.ArcOfCircle(Part.Circle(V(2.56, 0.85, 0), V(0, 0, 1), 0.25), math.radians(90), math.radians(270)),  # 9
    Part.LineSegment(V(2.56, 1.1, 0), V(2.56, 1.5, 0)),  # 10
    Part.LineSegment(V(2.56, 1.5, 0), V(-2.56, 1.5, 0)),  # 11
], False)
sketch23.addConstraint([
    Sketcher.Constraint("Coincident", 0, 2, 1, 2),
    Sketcher.Constraint("Coincident", 1, 1, 2, 1),
    Sketcher.Constraint("Coincident", 2, 2, 3, 2),
    Sketcher.Constraint("Coincident", 3, 1, 4, 1),
    Sketcher.Constraint("Coincident", 4, 2, 5, 1),
    Sketcher.Constraint("Coincident", 5, 2, 6, 1),
    Sketcher.Constraint("Coincident", 6, 2, 7, 2),
    Sketcher.Constraint("Coincident", 7, 1, 8, 1),
    Sketcher.Constraint("Coincident", 8, 2, 9, 2),
    Sketcher.Constraint("Coincident", 9, 1, 10, 1),
    Sketcher.Constraint("Coincident", 10, 2, 11, 1),
    Sketcher.Constraint("Coincident", 11, 2, 0, 1),
    Sketcher.Constraint("Vertical", 0),
    Sketcher.Constraint("Vertical", 2),
    Sketcher.Constraint("Vertical", 4),
    Sketcher.Constraint("Horizontal", 5),
    Sketcher.Constraint("Vertical", 6),
    Sketcher.Constraint("Vertical", 8),
    Sketcher.Constraint("Vertical", 10),
    Sketcher.Constraint("Horizontal", 11),
    Sketcher.Constraint("Equal", 1, 3),
    Sketcher.Constraint("Equal", 3, 7),
    Sketcher.Constraint("Equal", 7, 9),
    Sketcher.Constraint("Symmetric", 1, 3, 7, 3, -1, 1),
    Sketcher.Constraint("Symmetric", 3, 3, 9, 3, -1, 1),
    Sketcher.Constraint("Symmetric", 4, 2, 10, 2, -1, 1),
    Sketcher.Constraint("Symmetric", 3, 3, 7, 3, -2),
    Sketcher.Constraint("Vertical", 3, 3, 0, 2),
    Sketcher.Constraint("Vertical", 0, 2, 1, 1),
    Sketcher.Constraint("Vertical", 2, 2, 3, 1),
    Sketcher.Constraint("Vertical", 9, 3, 5, 2),
    Sketcher.Constraint("Vertical", 6, 2, 7, 1),
    Sketcher.Constraint("Radius", 1, Q("0.25 mm")),
    Sketcher.Constraint("DistanceY", 0, 2, 0, 1, Q("0.4 mm")),
    Sketcher.Constraint("DistanceY", 2, 2, 2, 1, Q("1.2 mm")),
    Sketcher.Constraint("DistanceX", 5, 1, 5, 2, Q("5.12 mm")),
])
pad23 = body29.newObject("PartDesign::Pad", "Pad022")
pad23.Profile = sketch23
pad23.Length = 0.5
body30 = doc.addObject("PartDesign::Body", "Body029")

# Sketch on XY plane
sketch24 = body30.newObject("Sketcher::SketchObject", "Sketch023")
sketch24.AttachmentSupport = (doc.getObject("XY_Plane029"), [""])
sketch24.MapMode = "FlatFace"
sketch24.AttachmentOffset = App.Placement(V(0, 0, 1.1), App.Rotation())
add_polygon(sketch24, [(-1, 1), (-1, -1), (1, -1), (1, 1)])  # lines 0-3
sketch24.addConstraint([
    Sketcher.Constraint("Vertical", 0),
    Sketcher.Constraint("Horizontal", 1),
    Sketcher.Constraint("Vertical", 2),
    Sketcher.Constraint("Horizontal", 3),
    Sketcher.Constraint("Symmetric", 0, 2, 2, 2, -1, 1),
    Sketcher.Constraint("Equal", 3, 0),
    Sketcher.Constraint("DistanceX", 1, 1, 1, 2, Q("2 mm")),
])
pad24 = body30.newObject("PartDesign::Pad", "Pad023")
pad24.Profile = sketch24
pad24.Length = 0.1
body31 = doc.addObject("PartDesign::Body", "Body030")

# Sketch on XY plane
sketch25 = body31.newObject("Sketcher::SketchObject", "Sketch024")
sketch25.AttachmentSupport = (doc.getObject("XY_Plane030"), [""])
sketch25.MapMode = "FlatFace"
sketch25.AttachmentOffset = App.Placement(V(0, 0, 0.5), App.Rotation())
add_polygon(sketch25, [(-2, 1.3), (-2, -1.3), (2, -1.3), (2, 1.3)])  # lines 0-3
sketch25.addConstraint([
    Sketcher.Constraint("Vertical", 0),
    Sketcher.Constraint("Horizontal", 1),
    Sketcher.Constraint("Vertical", 2),
    Sketcher.Constraint("Horizontal", 3),
    Sketcher.Constraint("Symmetric", 0, 2, 2, 2, -1, 1),
    Sketcher.Constraint("DistanceX", 1, 1, 1, 2, Q("4 mm")),
    Sketcher.Constraint("DistanceY", 0, 2, 0, 1, Q("2.6 mm")),
])
pad25 = body31.newObject("PartDesign::Pad", "Pad024")
pad25.Profile = sketch25
pad25.Length = 0.7
doc.recompute()

boolean23 = body31.newObject("PartDesign::Boolean", "Boolean022")
boolean23.Type = "Cut"
boolean23.addObjects([body30])
doc.recompute()

fillet = body31.newObject("PartDesign::Fillet", "Fillet")
fillet.Base = (boolean23, edges_at(boolean23, [
    (-2, 0, 1.2),
    (0, -1.3, 1.2),
    (0, 1.3, 1.2),
    (2, 0, 1.2),
]))
fillet.Radius = 0.1
doc.recompute()

boolean24 = body31.newObject("PartDesign::Boolean", "Boolean023")
boolean24.Type = "Fuse"
boolean24.addObjects([body27])
doc.recompute()

boolean25 = body31.newObject("PartDesign::Boolean", "Boolean024")
boolean25.Type = "Fuse"
boolean25.addObjects([body28])
doc.recompute()

boolean26 = body31.newObject("PartDesign::Boolean", "Boolean025")
boolean26.Type = "Fuse"
boolean26.addObjects([body29])

doc.recompute()
